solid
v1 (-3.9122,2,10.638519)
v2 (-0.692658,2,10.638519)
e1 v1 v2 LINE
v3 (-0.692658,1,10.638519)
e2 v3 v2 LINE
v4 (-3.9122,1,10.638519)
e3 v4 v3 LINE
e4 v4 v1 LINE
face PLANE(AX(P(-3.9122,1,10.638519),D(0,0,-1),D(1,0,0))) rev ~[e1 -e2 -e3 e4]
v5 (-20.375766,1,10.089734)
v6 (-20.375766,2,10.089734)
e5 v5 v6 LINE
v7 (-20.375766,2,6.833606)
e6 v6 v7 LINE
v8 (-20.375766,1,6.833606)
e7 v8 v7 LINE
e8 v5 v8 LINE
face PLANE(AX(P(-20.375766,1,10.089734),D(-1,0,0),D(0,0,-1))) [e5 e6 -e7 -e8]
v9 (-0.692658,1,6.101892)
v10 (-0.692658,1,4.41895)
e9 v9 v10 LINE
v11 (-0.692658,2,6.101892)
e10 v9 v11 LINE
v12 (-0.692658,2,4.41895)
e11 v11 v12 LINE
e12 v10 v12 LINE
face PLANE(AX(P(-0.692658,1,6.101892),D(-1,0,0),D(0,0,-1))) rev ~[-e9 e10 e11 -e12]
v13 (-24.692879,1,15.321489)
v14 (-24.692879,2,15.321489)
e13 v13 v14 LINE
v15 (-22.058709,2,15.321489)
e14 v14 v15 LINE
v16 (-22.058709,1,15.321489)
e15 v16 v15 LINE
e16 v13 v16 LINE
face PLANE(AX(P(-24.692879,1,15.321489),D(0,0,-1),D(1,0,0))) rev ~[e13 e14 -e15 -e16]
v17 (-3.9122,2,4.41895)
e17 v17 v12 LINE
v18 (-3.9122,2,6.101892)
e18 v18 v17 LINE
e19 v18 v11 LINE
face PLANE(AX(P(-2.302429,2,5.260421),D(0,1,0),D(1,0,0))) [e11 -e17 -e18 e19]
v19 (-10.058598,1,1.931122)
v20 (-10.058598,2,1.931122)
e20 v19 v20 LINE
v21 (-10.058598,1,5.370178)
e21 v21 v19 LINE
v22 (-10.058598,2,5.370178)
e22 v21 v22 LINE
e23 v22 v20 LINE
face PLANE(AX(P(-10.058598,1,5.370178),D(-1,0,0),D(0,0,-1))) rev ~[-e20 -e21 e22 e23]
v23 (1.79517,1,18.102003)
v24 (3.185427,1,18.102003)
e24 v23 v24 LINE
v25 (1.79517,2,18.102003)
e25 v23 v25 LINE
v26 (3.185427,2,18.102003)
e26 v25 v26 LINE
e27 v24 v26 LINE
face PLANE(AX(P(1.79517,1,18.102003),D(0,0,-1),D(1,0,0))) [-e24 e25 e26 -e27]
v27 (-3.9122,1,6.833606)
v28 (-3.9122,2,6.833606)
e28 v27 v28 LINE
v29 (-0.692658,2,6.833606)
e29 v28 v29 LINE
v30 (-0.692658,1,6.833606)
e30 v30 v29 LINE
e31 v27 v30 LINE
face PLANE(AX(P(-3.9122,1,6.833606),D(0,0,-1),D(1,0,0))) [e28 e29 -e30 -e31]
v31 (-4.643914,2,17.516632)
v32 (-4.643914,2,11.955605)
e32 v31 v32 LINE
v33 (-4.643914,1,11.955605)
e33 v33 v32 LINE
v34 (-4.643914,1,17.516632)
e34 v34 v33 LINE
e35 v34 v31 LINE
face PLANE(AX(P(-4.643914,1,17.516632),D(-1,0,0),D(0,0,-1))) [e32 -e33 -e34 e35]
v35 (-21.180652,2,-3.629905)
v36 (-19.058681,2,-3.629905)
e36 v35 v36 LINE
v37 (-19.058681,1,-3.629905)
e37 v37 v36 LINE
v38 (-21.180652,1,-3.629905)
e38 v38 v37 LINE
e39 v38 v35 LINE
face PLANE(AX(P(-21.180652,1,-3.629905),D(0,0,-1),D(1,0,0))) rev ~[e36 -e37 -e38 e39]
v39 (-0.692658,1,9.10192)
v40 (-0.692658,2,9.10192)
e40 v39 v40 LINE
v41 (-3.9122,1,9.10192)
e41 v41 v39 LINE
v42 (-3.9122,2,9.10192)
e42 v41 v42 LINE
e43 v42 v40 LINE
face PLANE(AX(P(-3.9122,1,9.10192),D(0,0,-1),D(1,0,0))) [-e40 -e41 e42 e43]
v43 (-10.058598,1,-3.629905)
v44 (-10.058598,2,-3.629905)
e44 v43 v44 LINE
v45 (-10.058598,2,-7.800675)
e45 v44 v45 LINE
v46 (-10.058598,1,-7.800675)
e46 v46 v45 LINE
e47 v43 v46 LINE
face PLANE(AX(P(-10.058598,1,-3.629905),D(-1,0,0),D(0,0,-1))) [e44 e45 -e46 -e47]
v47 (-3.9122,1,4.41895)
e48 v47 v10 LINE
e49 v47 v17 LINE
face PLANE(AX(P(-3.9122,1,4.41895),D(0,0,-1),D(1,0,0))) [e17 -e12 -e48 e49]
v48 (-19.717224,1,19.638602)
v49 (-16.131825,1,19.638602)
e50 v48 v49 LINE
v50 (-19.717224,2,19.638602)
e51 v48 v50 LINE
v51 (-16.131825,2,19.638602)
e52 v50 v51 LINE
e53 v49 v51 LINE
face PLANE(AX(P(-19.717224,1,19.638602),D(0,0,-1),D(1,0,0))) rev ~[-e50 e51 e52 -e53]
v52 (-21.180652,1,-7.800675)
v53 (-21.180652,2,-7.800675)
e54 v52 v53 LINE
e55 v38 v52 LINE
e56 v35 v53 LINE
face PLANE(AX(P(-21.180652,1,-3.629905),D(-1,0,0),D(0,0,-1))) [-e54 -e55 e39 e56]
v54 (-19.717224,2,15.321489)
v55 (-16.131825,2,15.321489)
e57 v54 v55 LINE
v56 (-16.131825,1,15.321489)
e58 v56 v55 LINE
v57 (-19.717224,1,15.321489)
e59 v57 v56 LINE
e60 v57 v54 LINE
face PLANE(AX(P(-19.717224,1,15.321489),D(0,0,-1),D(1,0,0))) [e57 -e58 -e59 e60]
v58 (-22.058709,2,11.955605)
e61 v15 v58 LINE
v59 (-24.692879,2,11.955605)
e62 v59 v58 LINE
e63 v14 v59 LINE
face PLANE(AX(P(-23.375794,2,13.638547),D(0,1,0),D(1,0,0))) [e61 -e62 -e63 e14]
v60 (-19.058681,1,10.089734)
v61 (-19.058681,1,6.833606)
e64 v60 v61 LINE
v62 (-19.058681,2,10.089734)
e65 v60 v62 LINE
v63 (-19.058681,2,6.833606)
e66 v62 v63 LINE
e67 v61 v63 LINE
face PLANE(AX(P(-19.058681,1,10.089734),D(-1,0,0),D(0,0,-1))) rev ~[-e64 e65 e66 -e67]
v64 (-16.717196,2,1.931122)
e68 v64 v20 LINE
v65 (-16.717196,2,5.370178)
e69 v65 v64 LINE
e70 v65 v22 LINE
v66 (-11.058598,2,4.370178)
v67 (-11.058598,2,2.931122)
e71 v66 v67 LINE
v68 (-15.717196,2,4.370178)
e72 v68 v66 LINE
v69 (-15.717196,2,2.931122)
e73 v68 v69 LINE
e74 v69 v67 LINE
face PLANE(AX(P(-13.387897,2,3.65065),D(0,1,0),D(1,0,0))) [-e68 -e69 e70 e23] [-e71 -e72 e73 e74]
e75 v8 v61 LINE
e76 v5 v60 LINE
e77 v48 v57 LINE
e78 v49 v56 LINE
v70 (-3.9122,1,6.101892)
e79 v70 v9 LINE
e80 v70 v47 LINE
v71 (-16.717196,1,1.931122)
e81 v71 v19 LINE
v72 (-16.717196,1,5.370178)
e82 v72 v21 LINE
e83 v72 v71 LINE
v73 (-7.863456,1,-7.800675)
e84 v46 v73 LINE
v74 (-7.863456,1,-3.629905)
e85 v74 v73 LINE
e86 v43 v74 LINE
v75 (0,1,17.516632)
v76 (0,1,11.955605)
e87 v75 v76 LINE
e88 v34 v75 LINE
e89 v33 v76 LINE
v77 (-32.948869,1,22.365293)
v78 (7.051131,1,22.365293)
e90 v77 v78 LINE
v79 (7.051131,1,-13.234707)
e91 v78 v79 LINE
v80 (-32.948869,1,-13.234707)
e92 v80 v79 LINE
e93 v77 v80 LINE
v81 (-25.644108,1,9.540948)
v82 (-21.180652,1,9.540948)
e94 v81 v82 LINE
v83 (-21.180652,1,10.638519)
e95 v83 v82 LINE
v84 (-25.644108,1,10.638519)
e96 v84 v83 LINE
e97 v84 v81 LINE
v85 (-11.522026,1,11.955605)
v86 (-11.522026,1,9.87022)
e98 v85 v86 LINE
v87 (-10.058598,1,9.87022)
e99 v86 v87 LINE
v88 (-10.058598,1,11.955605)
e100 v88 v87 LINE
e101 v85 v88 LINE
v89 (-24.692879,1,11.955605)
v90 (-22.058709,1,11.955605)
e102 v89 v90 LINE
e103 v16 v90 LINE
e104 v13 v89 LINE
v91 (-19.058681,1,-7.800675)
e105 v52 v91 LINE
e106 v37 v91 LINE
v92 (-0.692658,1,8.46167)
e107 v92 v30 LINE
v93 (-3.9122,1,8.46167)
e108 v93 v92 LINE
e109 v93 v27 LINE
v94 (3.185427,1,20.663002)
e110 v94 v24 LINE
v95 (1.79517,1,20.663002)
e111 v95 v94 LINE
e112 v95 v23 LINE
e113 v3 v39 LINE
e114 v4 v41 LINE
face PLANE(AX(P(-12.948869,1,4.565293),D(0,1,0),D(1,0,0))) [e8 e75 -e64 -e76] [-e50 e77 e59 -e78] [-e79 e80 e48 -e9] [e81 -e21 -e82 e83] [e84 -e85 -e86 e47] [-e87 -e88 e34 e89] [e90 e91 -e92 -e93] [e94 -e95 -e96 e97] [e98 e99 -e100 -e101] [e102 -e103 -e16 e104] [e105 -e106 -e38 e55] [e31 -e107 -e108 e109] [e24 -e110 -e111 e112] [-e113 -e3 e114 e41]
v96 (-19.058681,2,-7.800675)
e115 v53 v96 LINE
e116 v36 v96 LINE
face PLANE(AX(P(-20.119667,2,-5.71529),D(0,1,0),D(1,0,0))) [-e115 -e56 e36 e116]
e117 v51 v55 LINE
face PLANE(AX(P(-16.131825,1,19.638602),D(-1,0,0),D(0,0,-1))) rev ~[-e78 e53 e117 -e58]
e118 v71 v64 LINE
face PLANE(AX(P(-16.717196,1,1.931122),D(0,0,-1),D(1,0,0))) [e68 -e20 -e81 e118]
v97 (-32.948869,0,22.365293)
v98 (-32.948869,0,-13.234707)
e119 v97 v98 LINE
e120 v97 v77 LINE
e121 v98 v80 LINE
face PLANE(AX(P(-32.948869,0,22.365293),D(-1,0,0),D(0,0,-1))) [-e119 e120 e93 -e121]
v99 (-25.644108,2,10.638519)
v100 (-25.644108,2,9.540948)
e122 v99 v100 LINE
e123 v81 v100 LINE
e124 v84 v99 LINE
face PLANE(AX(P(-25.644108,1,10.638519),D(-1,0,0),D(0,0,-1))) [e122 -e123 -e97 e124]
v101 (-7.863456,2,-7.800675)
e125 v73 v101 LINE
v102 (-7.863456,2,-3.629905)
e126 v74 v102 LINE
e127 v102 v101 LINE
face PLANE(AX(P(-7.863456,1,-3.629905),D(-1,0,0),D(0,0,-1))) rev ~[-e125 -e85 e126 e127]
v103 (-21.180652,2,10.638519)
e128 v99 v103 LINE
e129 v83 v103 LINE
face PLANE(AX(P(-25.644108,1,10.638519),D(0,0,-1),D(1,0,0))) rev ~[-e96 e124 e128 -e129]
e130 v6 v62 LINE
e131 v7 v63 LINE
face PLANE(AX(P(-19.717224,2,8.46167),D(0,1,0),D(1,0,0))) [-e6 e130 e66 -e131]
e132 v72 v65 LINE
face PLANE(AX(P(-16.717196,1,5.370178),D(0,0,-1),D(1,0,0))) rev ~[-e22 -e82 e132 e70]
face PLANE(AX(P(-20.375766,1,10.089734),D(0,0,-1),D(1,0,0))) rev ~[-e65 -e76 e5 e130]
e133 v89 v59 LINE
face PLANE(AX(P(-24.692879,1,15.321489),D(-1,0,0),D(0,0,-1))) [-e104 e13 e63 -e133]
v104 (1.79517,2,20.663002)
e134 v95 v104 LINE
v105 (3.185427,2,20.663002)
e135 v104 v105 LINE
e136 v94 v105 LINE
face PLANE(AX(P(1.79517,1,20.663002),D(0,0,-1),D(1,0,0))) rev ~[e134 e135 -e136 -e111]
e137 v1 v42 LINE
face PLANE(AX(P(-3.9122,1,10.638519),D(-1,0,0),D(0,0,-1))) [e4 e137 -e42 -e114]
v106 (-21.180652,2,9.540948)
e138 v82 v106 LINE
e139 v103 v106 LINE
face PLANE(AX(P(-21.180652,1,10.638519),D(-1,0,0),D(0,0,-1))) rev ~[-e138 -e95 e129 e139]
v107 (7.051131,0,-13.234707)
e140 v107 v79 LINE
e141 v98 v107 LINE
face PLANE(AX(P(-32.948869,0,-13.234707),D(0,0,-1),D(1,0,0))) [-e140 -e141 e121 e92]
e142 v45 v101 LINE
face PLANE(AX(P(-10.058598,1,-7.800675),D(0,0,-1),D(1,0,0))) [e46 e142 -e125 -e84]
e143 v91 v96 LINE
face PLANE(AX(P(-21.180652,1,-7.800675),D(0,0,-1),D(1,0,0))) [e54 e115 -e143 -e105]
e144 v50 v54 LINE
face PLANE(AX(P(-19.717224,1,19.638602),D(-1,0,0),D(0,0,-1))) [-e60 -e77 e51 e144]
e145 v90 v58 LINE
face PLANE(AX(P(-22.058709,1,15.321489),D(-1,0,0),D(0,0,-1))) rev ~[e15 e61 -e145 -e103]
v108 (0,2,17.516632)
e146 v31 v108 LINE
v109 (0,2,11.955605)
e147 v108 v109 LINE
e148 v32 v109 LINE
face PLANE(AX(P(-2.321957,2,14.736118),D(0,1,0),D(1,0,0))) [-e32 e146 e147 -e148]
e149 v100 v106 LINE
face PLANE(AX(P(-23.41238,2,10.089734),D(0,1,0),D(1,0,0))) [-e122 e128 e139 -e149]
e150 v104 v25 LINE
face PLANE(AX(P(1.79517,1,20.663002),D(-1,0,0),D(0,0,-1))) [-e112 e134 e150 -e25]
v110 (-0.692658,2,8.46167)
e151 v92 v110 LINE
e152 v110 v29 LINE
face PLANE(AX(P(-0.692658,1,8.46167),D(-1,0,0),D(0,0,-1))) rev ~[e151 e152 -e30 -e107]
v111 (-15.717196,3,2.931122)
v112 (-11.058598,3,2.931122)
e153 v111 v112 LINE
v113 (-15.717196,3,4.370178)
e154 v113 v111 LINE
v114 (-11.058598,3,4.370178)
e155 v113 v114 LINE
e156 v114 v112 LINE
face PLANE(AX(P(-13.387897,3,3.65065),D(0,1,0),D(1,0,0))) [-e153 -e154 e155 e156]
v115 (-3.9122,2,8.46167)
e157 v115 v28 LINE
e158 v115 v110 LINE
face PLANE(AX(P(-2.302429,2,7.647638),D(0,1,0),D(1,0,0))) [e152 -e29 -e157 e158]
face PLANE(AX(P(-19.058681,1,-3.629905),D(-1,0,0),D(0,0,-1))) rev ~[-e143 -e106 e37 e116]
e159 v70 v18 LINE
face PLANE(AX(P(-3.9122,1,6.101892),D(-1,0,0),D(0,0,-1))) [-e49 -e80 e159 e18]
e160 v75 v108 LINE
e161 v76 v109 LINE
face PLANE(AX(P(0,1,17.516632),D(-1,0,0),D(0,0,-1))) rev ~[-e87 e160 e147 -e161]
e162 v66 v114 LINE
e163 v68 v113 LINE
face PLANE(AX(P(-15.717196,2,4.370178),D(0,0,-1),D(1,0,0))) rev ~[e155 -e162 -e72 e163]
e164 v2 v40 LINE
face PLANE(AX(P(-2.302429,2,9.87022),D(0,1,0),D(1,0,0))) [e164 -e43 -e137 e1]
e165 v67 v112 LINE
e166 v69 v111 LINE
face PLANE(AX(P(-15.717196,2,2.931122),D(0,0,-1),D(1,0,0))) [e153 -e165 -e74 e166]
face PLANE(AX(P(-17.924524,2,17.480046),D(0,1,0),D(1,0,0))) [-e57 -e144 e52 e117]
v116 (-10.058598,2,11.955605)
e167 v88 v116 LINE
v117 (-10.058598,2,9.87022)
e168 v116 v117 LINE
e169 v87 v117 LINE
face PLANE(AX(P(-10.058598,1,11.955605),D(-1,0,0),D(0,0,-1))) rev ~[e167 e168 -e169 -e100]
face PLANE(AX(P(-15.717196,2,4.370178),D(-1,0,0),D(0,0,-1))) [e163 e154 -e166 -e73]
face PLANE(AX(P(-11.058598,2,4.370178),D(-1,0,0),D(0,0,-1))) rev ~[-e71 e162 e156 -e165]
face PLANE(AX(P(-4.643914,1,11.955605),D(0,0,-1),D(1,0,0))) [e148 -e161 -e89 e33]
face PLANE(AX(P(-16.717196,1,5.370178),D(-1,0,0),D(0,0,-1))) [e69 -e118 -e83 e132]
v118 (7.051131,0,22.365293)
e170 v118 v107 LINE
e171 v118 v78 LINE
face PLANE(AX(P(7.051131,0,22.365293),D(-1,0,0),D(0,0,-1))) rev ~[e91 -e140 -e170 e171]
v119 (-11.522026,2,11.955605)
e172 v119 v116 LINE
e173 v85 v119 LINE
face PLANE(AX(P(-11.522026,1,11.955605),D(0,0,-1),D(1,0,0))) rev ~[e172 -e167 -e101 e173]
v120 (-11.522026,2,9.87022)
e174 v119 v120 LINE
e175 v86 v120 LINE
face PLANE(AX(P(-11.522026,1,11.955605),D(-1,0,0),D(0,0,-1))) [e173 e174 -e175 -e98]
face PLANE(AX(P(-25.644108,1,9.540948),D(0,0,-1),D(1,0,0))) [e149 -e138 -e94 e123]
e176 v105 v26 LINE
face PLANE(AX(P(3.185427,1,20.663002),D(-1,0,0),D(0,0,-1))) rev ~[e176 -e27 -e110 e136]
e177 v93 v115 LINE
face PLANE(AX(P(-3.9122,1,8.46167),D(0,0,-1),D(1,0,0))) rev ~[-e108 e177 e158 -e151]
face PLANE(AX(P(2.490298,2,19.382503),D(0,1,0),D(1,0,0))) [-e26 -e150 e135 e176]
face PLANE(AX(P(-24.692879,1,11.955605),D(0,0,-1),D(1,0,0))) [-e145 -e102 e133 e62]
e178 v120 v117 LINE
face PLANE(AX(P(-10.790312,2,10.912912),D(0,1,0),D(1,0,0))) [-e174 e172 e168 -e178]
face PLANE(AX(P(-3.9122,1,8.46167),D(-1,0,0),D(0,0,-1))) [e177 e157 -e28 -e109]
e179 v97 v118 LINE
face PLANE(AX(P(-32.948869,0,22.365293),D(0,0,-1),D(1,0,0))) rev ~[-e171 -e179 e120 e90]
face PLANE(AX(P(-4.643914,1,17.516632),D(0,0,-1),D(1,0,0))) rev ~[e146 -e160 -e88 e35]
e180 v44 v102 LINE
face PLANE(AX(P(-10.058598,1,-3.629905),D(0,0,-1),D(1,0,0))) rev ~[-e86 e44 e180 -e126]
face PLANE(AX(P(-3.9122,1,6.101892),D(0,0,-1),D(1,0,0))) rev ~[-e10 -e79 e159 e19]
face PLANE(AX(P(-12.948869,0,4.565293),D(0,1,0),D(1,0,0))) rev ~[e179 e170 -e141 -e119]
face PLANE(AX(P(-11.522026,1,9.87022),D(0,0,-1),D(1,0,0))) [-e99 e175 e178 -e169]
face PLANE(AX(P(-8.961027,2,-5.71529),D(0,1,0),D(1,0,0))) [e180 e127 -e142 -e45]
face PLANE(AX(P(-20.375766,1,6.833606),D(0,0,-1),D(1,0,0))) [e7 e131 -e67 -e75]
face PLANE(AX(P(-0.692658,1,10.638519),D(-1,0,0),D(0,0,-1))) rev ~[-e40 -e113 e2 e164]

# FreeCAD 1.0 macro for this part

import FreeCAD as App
import Part
import Sketcher
from FreeCAD import Vector
Q = App.Units.Quantity


def add_polygon(sketch, points):
    """Adds a closed chain of lines whose ends are joined by coincident constraints."""
    first, n = sketch.GeometryCount, len(points)
    for a, b in zip(points, points[1:] + points[:1]):
        sketch.addGeometry(Part.LineSegment(App.Vector(*a, 0), App.Vector(*b, 0)), False)
    for i in range(n):
        sketch.addConstraint(Sketcher.Constraint("Coincident", first + i, 2, first + (i + 1) % n, 1))

doc = App.newDocument("Part")
body = doc.addObject("PartDesign::Body", "Body")

sketch1 = body.newObject("Sketcher::SketchObject", "Sketch")
sketch1.AttachmentSupport = (doc.getObject("XZ_Plane"), [""])
sketch1.MapMode = "FlatFace"
add_polygon(sketch1, [(-33, -13), (-33, 22), (7, 22), (7, -13)])
sketch1.addConstraint([
    Sketcher.Constraint("Vertical", 0),
    Sketcher.Constraint("Horizontal", 1),
    Sketcher.Constraint("Vertical", 2),
    Sketcher.Constraint("Horizontal", 3),
    Sketcher.Constraint("DistanceX", 1, 1, 1, 2, Q("40 mm")),
    Sketcher.Constraint("DistanceY", 0, 1, 0, 2, Q("35.6 mm")),
    Sketcher.Constraint("DistanceX", 0, 2, -1, 1, Q("32.948869 mm")),
    Sketcher.Constraint("DistanceY", -1, 1, 0, 2, Q("22.365293 mm")),
])
pad1 = body.newObject("PartDesign::Pad", "Pad")
pad1.Profile = sketch1
pad1.Length = 1
pad1.Reversed = True

sketch2 = body.newObject("Sketcher::SketchObject", "Sketch001")
sketch2.AttachmentSupport = (doc.getObject("XZ_Plane"), [""])
sketch2.MapMode = "FlatFace"
sketch2.AttachmentOffset = App.Placement(Vector(0, 0, -1), App.Rotation())
add_polygon(sketch2, [(-16.7, 1.9), (-16.7, 5.4), (-10.1, 5.4), (-10.1, 1.9)])
add_polygon(sketch2, [(-4.6, 12), (-4.6, 17.5), (0, 17.5), (0, 12)])
add_polygon(sketch2, [(-24.7, 12), (-24.7, 15.3), (-22.1, 15.3), (-22.1, 12)])
add_polygon(sketch2, [(-25.6, 9.5), (-25.6, 10.6), (-21.2, 10.6), (-21.2, 9.5)])
add_polygon(sketch2, [(-20.4, 6.8), (-20.4, 10.1), (-19.1, 10.1), (-19.1, 6.8)])
add_polygon(sketch2, [(-19.7, 15.3), (-19.7, 19.6), (-16.1, 19.6), (-16.1, 15.3)])
add_polygon(sketch2, [(-21.2, -7.8), (-21.2, -3.6), (-19.1, -3.6), (-19.1, -7.8)])
add_polygon(sketch2, [(-10.1, -7.8), (-10.1, -3.6), (-7.9, -3.6), (-7.9, -7.8)])
add_polygon(sketch2, [(1.8, 18.1), (1.8, 20.7), (3.2, 20.7), (3.2, 18.1)])
add_polygon(sketch2, [(-3.9, 9.1), (-3.9, 10.6), (-0.7, 10.6), (-0.7, 9.1)])
add_polygon(sketch2, [(-3.9, 6.8), (-3.9, 8.5), (-0.7, 8.5), (-0.7, 6.8)])
add_polygon(sketch2, [(-3.9, 4.4), (-3.9, 6.1), (-0.7, 6.1), (-0.7, 4.4)])
add_polygon(sketch2, [(-11.5, 9.9), (-11.5, 12), (-10.1, 12), (-10.1, 9.9)])
sketch2.addConstraint([
    Sketcher.Constraint("Vertical", 0),
    Sketcher.Constraint("Horizontal", 1),
    Sketcher.Constraint("Vertical", 2),
    Sketcher.Constraint("Horizontal", 3),
    Sketcher.Constraint("Vertical", 4),
    Sketcher.Constraint("Horizontal", 5),
    Sketcher.Constraint("Vertical", 6),
    Sketcher.Constraint("Horizontal", 7),
    Sketcher.Constraint("Vertical", 8),
    Sketcher.Constraint("Horizontal", 9),
    Sketcher.Constraint("Vertical", 10),
    Sketcher.Constraint("Horizontal", 11),
    Sketcher.Constraint("Vertical", 12),
    Sketcher.Constraint("Horizontal", 13),
    Sketcher.Constraint("Vertical", 14),
    Sketcher.Constraint("Horizontal", 15),
    Sketcher.Constraint("Vertical", 16),
    Sketcher.Constraint("Horizontal", 17),
    Sketcher.Constraint("Vertical", 18),
    Sketcher.Constraint("Horizontal", 19),
    Sketcher.Constraint("Vertical", 20),
    Sketcher.Constraint("Horizontal", 21),
    Sketcher.Constraint("Vertical", 22),
    Sketcher.Constraint("Horizontal", 23),
    Sketcher.Constraint("Vertical", 24),
    Sketcher.Constraint("Horizontal", 25),
    Sketcher.Constraint("Vertical", 26),
    Sketcher.Constraint("Horizontal", 27),
    Sketcher.Constraint("Vertical", 28),
    Sketcher.Constraint("Horizontal", 29),
    Sketcher.Constraint("Vertical", 30),
    Sketcher.Constraint("Horizontal", 31),
    Sketcher.Constraint("Vertical", 32),
    Sketcher.Constraint("Horizontal", 33),
    Sketcher.Constraint("Vertical", 34),
    Sketcher.Constraint("Horizontal", 35),
    Sketcher.Constraint("Vertical", 36),
    Sketcher.Constraint("Horizontal", 37),
    Sketcher.Constraint("Vertical", 38),
    Sketcher.Constraint("Horizontal", 39),
    Sketcher.Constraint("Vertical", 40),
    Sketcher.Constraint("Horizontal", 41),
    Sketcher.Constraint("Vertical", 42),
    Sketcher.Constraint("Horizontal", 43),
    Sketcher.Constraint("Vertical", 44),
    Sketcher.Constraint("Horizontal", 45),
    Sketcher.Constraint("Vertical", 46),
    Sketcher.Constraint("Horizontal", 47),
    Sketcher.Constraint("Vertical", 48),
    Sketcher.Constraint("Horizontal", 49),
    Sketcher.Constraint("Vertical", 50),
    Sketcher.Constraint("Horizontal", 51),
    Sketcher.Constraint("PointOnObject", 5, 2, -2),
    Sketcher.Constraint("Horizontal", 7, 2, 10, 2),
    Sketcher.Constraint("Horizontal", 9, 2, 22, 2),
    Sketcher.Constraint("Horizontal", 25, 2, 28, 2),
    Sketcher.Constraint("Horizontal", 27, 2, 30, 2),
    Sketcher.Constraint("Horizontal", 13, 2, 36, 2),
    Sketcher.Constraint("Horizontal", 19, 2, 42, 2),
    Sketcher.Constraint("Horizontal", 11, 2, 48, 2),
    Sketcher.Constraint("Vertical", 14, 2, 24, 2),
    Sketcher.Constraint("Vertical", 18, 2, 25, 2),
    Sketcher.Constraint("Vertical", 2, 2, 28, 2),
    Sketcher.Constraint("Vertical", 39, 2, 40, 2),
    Sketcher.Constraint("Vertical", 38, 2, 41, 2),
    Sketcher.Constraint("Vertical", 43, 2, 44, 2),
    Sketcher.Constraint("Vertical", 42, 2, 45, 2),
    Sketcher.Constraint("Vertical", 31, 2, 49, 2),
    Sketcher.Constraint("DistanceY", 32, 1, 32, 2, Q("2.560999 mm")),
    Sketcher.Constraint("DistanceX", 1, 1, 1, 2, Q("6.658598 mm")),
    Sketcher.Constraint("DistanceX", 21, 1, 21, 2, Q("3.585399 mm")),
    Sketcher.Constraint("DistanceY", 36, 1, 36, 2, Q("1.5366 mm")),
    Sketcher.Constraint("DistanceX", 9, 1, 9, 2, Q("2.634171 mm")),
    Sketcher.Constraint("DistanceX", 25, 1, 25, 2, Q("2.121971 mm")),
    Sketcher.Constraint("DistanceX", 37, 1, 37, 2, Q("3.219542 mm")),
    Sketcher.Constraint("DistanceX", 49, 1, 49, 2, Q("1.463428 mm")),
    Sketcher.Constraint("DistanceY", 12, 1, 12, 2, Q("1.097571 mm")),
    Sketcher.Constraint("DistanceY", 24, 1, 24, 2, Q("4.17077 mm")),
    Sketcher.Constraint("DistanceX", 1, 2, -1, 1, Q("10.058598 mm")),
    Sketcher.Constraint("DistanceX", 36, 2, -1, 1, Q("3.9122 mm")),
    Sketcher.Constraint("DistanceX", 12, 2, 10, 2, Q("3.585399 mm")),
    Sketcher.Constraint("DistanceY", 21, 2, 32, 2, Q("1.0244 mm")),
    Sketcher.Constraint("DistanceY", 6, 2, 34, 2, Q("6.146398 mm")),
    Sketcher.Constraint("DistanceX", 22, 2, 48, 2, Q("4.609799 mm")),
    Sketcher.Constraint("DistanceY", 39, 2, 50, 2, Q("0.7683 mm")),
    Sketcher.Constraint("DistanceX", 5, 1, 5, 2, Q("4.643914 mm")),
    Sketcher.Constraint("DistanceX", 13, 1, 13, 2, Q("4.463456 mm")),
    Sketcher.Constraint("DistanceX", 17, 1, 17, 2, Q("1.317085 mm")),
    Sketcher.Constraint("DistanceX", 29, 1, 29, 2, Q("2.195142 mm")),
    Sketcher.Constraint("DistanceX", 33, 1, 33, 2, Q("1.390257 mm")),
    Sketcher.Constraint("DistanceY", 0, 1, 0, 2, Q("3.439056 mm")),
    Sketcher.Constraint("DistanceY", 4, 1, 4, 2, Q("5.561027 mm")),
    Sketcher.Constraint("DistanceY", 8, 1, 8, 2, Q("3.365885 mm")),
    Sketcher.Constraint("DistanceY", 16, 1, 16, 2, Q("3.256128 mm")),
    Sketcher.Constraint("DistanceY", 40, 1, 40, 2, Q("1.628064 mm")),
    Sketcher.Constraint("DistanceY", 44, 1, 44, 2, Q("1.682942 mm")),
    Sketcher.Constraint("DistanceY", 48, 1, 48, 2, Q("2.085385 mm")),
    Sketcher.Constraint("DistanceY", -1, 1, 0, 2, Q("5.370178 mm")),
    Sketcher.Constraint("DistanceY", -1, 1, 4, 2, Q("17.516632 mm")),
    Sketcher.Constraint("DistanceX", 8, 2, -1, 1, Q("24.692879 mm")),
    Sketcher.Constraint("DistanceX", -1, 1, 32, 2, Q("1.79517 mm")),
    Sketcher.Constraint("DistanceY", -1, 1, 40, 2, Q("8.46167 mm")),
    Sketcher.Constraint("DistanceY", -1, 1, 46, 2, Q("4.41895 mm")),
    Sketcher.Constraint("DistanceY", 24, 2, 19, 2, Q("10.463511 mm")),
])
pad2 = body.newObject("PartDesign::Pad", "Pad001")
pad2.Profile = sketch2
pad2.Length = 1
pad2.Reversed = True

sketch3 = body.newObject("Sketcher::SketchObject", "Sketch002")
sketch3.AttachmentSupport = (doc.getObject("XZ_Plane"), [""])
sketch3.MapMode = "FlatFace"
sketch3.AttachmentOffset = App.Placement(Vector(0, 0, -2), App.Rotation())
add_polygon(sketch3, [(-15.7, 2.9), (-15.7, 4.4), (-11.1, 4.4), (-11.1, 2.9)])
sketch3.addConstraint([
    Sketcher.Constraint("Vertical", 0),
    Sketcher.Constraint("Horizontal", 1),
    Sketcher.Constraint("Vertical", 2),
    Sketcher.Constraint("Horizontal", 3),
    Sketcher.Constraint("DistanceX", 1, 1, 1, 2, Q("4.658598 mm")),
    Sketcher.Constraint("DistanceX", 1, 2, -1, 1, Q("11.058598 mm")),
    Sketcher.Constraint("DistanceY", 0, 1, 0, 2, Q("1.439056 mm")),
    Sketcher.Constraint("DistanceY", -1, 1, 0, 2, Q("4.370178 mm")),
])
pad3 = body.newObject("PartDesign::Pad", "Pad002")
pad3.Profile = sketch3
pad3.Length = 1
pad3.Reversed = True

doc.recompute()
